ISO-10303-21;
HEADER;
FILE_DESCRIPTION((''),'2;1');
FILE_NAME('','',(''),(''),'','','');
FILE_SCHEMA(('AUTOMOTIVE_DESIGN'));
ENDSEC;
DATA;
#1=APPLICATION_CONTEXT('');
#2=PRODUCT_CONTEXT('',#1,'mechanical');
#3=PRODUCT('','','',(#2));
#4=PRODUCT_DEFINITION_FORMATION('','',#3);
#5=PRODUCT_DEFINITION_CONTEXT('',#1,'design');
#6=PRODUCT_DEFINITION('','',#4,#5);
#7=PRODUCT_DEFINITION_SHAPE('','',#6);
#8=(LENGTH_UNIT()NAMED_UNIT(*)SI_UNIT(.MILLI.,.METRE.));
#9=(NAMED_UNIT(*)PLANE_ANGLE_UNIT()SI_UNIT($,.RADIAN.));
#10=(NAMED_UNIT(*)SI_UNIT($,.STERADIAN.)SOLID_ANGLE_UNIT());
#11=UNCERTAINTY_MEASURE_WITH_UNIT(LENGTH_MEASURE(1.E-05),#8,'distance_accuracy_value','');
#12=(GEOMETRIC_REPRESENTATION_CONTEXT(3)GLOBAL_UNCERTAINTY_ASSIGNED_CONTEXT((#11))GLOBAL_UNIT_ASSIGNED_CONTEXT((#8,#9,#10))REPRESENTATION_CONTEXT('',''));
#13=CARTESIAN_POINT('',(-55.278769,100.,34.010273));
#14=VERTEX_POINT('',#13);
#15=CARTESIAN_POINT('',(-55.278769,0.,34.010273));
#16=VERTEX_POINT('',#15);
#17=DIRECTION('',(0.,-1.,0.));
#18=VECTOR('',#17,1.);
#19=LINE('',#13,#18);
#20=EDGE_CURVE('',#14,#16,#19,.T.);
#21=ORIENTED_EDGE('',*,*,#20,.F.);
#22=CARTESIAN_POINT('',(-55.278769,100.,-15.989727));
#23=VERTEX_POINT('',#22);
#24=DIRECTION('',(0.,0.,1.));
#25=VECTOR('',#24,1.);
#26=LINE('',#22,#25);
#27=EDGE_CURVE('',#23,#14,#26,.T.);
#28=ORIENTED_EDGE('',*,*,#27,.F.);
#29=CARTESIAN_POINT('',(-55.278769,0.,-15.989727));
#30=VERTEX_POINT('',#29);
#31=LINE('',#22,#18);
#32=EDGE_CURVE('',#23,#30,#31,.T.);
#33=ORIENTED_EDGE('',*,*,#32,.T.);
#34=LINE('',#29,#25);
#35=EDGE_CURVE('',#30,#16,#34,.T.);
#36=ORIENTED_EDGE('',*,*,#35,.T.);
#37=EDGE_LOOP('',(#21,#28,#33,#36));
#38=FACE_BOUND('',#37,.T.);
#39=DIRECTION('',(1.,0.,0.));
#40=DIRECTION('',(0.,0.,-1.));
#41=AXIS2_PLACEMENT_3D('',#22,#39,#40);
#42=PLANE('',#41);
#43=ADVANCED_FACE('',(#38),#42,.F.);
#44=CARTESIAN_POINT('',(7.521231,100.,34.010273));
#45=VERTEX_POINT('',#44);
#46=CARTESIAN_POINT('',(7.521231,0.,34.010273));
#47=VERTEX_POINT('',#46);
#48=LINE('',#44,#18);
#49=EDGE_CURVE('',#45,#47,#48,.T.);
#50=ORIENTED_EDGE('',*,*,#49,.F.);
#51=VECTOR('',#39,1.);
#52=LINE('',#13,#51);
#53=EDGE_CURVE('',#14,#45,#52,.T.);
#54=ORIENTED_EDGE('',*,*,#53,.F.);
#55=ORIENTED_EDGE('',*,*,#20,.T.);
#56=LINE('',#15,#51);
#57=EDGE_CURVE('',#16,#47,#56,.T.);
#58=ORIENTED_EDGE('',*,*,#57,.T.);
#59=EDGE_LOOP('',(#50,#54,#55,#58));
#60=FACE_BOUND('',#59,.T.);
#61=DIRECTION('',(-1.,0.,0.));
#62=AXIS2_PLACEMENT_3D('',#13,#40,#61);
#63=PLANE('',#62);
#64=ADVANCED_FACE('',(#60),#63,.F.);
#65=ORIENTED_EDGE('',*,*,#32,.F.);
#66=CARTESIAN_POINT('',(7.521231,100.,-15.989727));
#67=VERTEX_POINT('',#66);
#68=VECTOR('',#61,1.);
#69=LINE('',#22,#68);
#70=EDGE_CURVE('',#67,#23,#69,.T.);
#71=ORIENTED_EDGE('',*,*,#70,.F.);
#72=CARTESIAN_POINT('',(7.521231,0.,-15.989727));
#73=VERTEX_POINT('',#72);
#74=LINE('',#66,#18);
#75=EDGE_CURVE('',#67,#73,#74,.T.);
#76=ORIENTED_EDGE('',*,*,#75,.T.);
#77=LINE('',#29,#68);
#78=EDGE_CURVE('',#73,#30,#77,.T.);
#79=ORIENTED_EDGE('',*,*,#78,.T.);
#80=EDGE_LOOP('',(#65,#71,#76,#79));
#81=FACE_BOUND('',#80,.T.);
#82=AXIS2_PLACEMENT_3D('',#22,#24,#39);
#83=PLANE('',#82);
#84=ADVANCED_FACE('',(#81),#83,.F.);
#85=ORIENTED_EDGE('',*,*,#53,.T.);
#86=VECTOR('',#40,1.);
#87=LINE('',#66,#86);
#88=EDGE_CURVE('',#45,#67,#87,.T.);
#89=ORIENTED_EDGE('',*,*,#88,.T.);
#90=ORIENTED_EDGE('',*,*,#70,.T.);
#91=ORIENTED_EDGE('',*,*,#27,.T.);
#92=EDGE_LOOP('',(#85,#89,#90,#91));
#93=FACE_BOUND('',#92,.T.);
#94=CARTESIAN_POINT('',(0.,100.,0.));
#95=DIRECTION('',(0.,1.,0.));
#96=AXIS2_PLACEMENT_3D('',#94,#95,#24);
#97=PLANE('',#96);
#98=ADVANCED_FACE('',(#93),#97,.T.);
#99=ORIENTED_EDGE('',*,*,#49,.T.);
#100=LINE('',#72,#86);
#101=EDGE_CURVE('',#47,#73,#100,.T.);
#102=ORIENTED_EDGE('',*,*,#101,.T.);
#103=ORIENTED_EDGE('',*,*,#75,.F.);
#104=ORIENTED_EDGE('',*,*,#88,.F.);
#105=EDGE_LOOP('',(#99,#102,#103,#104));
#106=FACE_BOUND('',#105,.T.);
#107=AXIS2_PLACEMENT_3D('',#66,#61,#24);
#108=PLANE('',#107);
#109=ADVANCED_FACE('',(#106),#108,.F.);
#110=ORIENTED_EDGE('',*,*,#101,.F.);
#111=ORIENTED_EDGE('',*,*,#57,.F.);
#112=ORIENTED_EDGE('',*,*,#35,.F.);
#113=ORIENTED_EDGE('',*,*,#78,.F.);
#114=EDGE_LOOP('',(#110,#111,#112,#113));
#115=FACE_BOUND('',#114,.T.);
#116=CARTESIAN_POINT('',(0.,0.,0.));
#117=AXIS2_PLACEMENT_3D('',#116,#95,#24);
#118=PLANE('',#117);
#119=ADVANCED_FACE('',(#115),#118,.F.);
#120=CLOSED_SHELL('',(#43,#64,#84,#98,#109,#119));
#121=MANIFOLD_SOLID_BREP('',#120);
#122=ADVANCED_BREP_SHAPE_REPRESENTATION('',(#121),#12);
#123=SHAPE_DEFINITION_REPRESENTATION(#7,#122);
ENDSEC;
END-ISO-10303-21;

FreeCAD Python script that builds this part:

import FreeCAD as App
import Part
import Sketcher
from FreeCAD import Vector
Q = App.Units.Quantity

doc = App.newDocument("Part")
params = doc.addObject("Spreadsheet::Sheet", "Params")
for row, (alias, value) in enumerate([
    ("sketch1_height", "50 mm"),
    ("sketch1_width", "62.8 mm"),
    ("pad1_length", "100 mm"),
], start=1):
    params.set(f"A{row}", alias)
    params.set(f"B{row}", "=" + value)
    params.setAlias(f"B{row}", alias)

body = doc.addObject("PartDesign::Body", "Body")

# Sketch on XZ plane
sketch1 = body.newObject("Sketcher::SketchObject", "Sketch")
sketch1.AttachmentSupport = (doc.getObject("XZ_Plane"), [""])
sketch1.MapMode = "FlatFace"
sketch1.addGeometry(Part.LineSegment(Vector(-55.278769, -15.989727, 0), Vector(-55.278769, 34.010273, 0)), False)
sketch1.addGeometry(Part.LineSegment(Vector(-55.278769, 34.010273, 0), Vector(7.521231, 34.010273, 0)), False)
sketch1.addGeometry(Part.LineSegment(Vector(7.521231, 34.010273, 0), Vector(7.521231, -15.989727, 0)), False)
sketch1.addGeometry(Part.LineSegment(Vector(7.521231, -15.989727, 0), Vector(-55.278769, -15.989727, 0)), False)
sketch1.addConstraint(Sketcher.Constraint("Coincident", 0, 2, 1, 1))
sketch1.addConstraint(Sketcher.Constraint("Coincident", 1, 2, 2, 1))
sketch1.addConstraint(Sketcher.Constraint("Coincident", 2, 2, 3, 1))
sketch1.addConstraint(Sketcher.Constraint("Coincident", 3, 2, 0, 1))
sketch1.addConstraint(Sketcher.Constraint("Vertical", 0))
sketch1.addConstraint(Sketcher.Constraint("Horizontal", 1))
sketch1.addConstraint(Sketcher.Constraint("Vertical", 2))
sketch1.addConstraint(Sketcher.Constraint("Horizontal", 3))
sketch1.addConstraint(Sketcher.Constraint("DistanceY", 0, 1, 0, 2, Q("50 mm")))
sketch1.addConstraint(Sketcher.Constraint("DistanceX", 1, 1, 1, 2, Q("62.8 mm")))
sketch1.addConstraint(Sketcher.Constraint("DistanceX", 0, 2, -1, 1, Q("55.278769 mm")))
sketch1.addConstraint(Sketcher.Constraint("DistanceY", -1, 1, 0, 2, Q("34.010273 mm")))
sketch1.setExpression("Constraints[8]", "Params.sketch1_height")
sketch1.setExpression("Constraints[9]", "Params.sketch1_width")
pad1 = body.newObject("PartDesign::Pad", "Pad")
pad1.Profile = sketch1
pad1.setExpression("Length", "Params.pad1_length")
pad1.Reversed = True

doc.recompute()
